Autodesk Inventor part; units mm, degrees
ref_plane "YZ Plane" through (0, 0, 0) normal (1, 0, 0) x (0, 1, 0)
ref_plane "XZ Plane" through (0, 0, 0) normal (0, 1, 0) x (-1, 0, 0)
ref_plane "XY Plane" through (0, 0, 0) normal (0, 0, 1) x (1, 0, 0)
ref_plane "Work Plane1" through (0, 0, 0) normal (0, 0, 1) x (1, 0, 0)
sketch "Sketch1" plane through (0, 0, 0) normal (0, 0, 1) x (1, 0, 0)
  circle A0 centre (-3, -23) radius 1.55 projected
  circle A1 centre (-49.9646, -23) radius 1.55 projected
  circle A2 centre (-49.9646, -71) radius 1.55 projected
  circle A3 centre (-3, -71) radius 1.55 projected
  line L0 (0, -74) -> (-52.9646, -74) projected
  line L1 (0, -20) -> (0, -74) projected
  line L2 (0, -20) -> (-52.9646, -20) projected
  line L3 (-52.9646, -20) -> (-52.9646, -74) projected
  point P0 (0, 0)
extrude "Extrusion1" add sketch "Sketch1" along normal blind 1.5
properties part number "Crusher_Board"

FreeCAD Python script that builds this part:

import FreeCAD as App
import Part
import Sketcher
Q = App.Units.Quantity

doc = App.newDocument("Part")
body = doc.addObject("PartDesign::Body", "Body")

# Sketch on XY plane
sketch1 = body.newObject("Sketcher::SketchObject", "Sketch")
sketch1.AttachmentSupport = (doc.getObject("XY_Plane"), [""])
sketch1.MapMode = "FlatFace"
sketch1.addGeometry(Part.LineSegment(App.Vector(-53, -74, 0), App.Vector(0, -74, 0)), False)
sketch1.addGeometry(Part.LineSegment(App.Vector(0, -74, 0), App.Vector(0, -20, 0)), False)
sketch1.addGeometry(Part.LineSegment(App.Vector(0, -20, 0), App.Vector(-53, -20, 0)), False)
sketch1.addGeometry(Part.LineSegment(App.Vector(-53, -20, 0), App.Vector(-53, -74, 0)), False)
sketch1.addGeometry(Part.Circle(App.Vector(-50, -71, 0), App.Vector(0, 0, 1), 1.6), False)
sketch1.addGeometry(Part.Circle(App.Vector(-3, -71, 0), App.Vector(0, 0, 1), 1.6), False)
sketch1.addGeometry(Part.Circle(App.Vector(-50, -23, 0), App.Vector(0, 0, 1), 1.6), False)
sketch1.addGeometry(Part.Circle(App.Vector(-3, -23, 0), App.Vector(0, 0, 1), 1.6), False)
sketch1.addConstraint(Sketcher.Constraint("Coincident", 0, 2, 1, 1))
sketch1.addConstraint(Sketcher.Constraint("Coincident", 1, 2, 2, 1))
sketch1.addConstraint(Sketcher.Constraint("Coincident", 2, 2, 3, 1))
sketch1.addConstraint(Sketcher.Constraint("Coincident", 3, 2, 0, 1))
sketch1.addConstraint(Sketcher.Constraint("Horizontal", 0))
sketch1.addConstraint(Sketcher.Constraint("Vertical", 1))
sketch1.addConstraint(Sketcher.Constraint("Horizontal", 2))
sketch1.addConstraint(Sketcher.Constraint("Vertical", 3))
sketch1.addConstraint(Sketcher.Constraint("Equal", 4, 5))
sketch1.addConstraint(Sketcher.Constraint("Equal", 5, 6))
sketch1.addConstraint(Sketcher.Constraint("Equal", 6, 7))
sketch1.addConstraint(Sketcher.Constraint("PointOnObject", 0, 2, -2))
sketch1.addConstraint(Sketcher.Constraint("Horizontal", 4, 3, 5, 3))
sketch1.addConstraint(Sketcher.Constraint("Horizontal", 6, 3, 7, 3))
sketch1.addConstraint(Sketcher.Constraint("Vertical", 4, 3, 6, 3))
sketch1.addConstraint(Sketcher.Constraint("Vertical", 5, 3, 7, 3))
sketch1.addConstraint(Sketcher.Constraint("Diameter", 4, Q("3.1 mm")))
sketch1.addConstraint(Sketcher.Constraint("DistanceY", 1, 1, 1, 2, Q("54 mm")))
sketch1.addConstraint(Sketcher.Constraint("DistanceY", 4, 3, -1, 1, Q("71 mm")))
sketch1.addConstraint(Sketcher.Constraint("DistanceX", 5, 3, -1, 1, Q("3 mm")))
sketch1.addConstraint(Sketcher.Constraint("DistanceY", 6, 3, -1, 1, Q("23 mm")))
sketch1.addConstraint(Sketcher.Constraint("DistanceY", 0, 2, -1, 1, Q("74 mm")))
sketch1.addConstraint(Sketcher.Constraint("DistanceX", 2, 2, 6, 3, Q("3 mm")))
sketch1.addConstraint(Sketcher.Constraint("DistanceX", 0, 1, 0, 2, Q("52.9646 mm")))
pad1 = body.newObject("PartDesign::Pad", "Pad")
pad1.Profile = sketch1
pad1.Length = 1.5

doc.recompute()
